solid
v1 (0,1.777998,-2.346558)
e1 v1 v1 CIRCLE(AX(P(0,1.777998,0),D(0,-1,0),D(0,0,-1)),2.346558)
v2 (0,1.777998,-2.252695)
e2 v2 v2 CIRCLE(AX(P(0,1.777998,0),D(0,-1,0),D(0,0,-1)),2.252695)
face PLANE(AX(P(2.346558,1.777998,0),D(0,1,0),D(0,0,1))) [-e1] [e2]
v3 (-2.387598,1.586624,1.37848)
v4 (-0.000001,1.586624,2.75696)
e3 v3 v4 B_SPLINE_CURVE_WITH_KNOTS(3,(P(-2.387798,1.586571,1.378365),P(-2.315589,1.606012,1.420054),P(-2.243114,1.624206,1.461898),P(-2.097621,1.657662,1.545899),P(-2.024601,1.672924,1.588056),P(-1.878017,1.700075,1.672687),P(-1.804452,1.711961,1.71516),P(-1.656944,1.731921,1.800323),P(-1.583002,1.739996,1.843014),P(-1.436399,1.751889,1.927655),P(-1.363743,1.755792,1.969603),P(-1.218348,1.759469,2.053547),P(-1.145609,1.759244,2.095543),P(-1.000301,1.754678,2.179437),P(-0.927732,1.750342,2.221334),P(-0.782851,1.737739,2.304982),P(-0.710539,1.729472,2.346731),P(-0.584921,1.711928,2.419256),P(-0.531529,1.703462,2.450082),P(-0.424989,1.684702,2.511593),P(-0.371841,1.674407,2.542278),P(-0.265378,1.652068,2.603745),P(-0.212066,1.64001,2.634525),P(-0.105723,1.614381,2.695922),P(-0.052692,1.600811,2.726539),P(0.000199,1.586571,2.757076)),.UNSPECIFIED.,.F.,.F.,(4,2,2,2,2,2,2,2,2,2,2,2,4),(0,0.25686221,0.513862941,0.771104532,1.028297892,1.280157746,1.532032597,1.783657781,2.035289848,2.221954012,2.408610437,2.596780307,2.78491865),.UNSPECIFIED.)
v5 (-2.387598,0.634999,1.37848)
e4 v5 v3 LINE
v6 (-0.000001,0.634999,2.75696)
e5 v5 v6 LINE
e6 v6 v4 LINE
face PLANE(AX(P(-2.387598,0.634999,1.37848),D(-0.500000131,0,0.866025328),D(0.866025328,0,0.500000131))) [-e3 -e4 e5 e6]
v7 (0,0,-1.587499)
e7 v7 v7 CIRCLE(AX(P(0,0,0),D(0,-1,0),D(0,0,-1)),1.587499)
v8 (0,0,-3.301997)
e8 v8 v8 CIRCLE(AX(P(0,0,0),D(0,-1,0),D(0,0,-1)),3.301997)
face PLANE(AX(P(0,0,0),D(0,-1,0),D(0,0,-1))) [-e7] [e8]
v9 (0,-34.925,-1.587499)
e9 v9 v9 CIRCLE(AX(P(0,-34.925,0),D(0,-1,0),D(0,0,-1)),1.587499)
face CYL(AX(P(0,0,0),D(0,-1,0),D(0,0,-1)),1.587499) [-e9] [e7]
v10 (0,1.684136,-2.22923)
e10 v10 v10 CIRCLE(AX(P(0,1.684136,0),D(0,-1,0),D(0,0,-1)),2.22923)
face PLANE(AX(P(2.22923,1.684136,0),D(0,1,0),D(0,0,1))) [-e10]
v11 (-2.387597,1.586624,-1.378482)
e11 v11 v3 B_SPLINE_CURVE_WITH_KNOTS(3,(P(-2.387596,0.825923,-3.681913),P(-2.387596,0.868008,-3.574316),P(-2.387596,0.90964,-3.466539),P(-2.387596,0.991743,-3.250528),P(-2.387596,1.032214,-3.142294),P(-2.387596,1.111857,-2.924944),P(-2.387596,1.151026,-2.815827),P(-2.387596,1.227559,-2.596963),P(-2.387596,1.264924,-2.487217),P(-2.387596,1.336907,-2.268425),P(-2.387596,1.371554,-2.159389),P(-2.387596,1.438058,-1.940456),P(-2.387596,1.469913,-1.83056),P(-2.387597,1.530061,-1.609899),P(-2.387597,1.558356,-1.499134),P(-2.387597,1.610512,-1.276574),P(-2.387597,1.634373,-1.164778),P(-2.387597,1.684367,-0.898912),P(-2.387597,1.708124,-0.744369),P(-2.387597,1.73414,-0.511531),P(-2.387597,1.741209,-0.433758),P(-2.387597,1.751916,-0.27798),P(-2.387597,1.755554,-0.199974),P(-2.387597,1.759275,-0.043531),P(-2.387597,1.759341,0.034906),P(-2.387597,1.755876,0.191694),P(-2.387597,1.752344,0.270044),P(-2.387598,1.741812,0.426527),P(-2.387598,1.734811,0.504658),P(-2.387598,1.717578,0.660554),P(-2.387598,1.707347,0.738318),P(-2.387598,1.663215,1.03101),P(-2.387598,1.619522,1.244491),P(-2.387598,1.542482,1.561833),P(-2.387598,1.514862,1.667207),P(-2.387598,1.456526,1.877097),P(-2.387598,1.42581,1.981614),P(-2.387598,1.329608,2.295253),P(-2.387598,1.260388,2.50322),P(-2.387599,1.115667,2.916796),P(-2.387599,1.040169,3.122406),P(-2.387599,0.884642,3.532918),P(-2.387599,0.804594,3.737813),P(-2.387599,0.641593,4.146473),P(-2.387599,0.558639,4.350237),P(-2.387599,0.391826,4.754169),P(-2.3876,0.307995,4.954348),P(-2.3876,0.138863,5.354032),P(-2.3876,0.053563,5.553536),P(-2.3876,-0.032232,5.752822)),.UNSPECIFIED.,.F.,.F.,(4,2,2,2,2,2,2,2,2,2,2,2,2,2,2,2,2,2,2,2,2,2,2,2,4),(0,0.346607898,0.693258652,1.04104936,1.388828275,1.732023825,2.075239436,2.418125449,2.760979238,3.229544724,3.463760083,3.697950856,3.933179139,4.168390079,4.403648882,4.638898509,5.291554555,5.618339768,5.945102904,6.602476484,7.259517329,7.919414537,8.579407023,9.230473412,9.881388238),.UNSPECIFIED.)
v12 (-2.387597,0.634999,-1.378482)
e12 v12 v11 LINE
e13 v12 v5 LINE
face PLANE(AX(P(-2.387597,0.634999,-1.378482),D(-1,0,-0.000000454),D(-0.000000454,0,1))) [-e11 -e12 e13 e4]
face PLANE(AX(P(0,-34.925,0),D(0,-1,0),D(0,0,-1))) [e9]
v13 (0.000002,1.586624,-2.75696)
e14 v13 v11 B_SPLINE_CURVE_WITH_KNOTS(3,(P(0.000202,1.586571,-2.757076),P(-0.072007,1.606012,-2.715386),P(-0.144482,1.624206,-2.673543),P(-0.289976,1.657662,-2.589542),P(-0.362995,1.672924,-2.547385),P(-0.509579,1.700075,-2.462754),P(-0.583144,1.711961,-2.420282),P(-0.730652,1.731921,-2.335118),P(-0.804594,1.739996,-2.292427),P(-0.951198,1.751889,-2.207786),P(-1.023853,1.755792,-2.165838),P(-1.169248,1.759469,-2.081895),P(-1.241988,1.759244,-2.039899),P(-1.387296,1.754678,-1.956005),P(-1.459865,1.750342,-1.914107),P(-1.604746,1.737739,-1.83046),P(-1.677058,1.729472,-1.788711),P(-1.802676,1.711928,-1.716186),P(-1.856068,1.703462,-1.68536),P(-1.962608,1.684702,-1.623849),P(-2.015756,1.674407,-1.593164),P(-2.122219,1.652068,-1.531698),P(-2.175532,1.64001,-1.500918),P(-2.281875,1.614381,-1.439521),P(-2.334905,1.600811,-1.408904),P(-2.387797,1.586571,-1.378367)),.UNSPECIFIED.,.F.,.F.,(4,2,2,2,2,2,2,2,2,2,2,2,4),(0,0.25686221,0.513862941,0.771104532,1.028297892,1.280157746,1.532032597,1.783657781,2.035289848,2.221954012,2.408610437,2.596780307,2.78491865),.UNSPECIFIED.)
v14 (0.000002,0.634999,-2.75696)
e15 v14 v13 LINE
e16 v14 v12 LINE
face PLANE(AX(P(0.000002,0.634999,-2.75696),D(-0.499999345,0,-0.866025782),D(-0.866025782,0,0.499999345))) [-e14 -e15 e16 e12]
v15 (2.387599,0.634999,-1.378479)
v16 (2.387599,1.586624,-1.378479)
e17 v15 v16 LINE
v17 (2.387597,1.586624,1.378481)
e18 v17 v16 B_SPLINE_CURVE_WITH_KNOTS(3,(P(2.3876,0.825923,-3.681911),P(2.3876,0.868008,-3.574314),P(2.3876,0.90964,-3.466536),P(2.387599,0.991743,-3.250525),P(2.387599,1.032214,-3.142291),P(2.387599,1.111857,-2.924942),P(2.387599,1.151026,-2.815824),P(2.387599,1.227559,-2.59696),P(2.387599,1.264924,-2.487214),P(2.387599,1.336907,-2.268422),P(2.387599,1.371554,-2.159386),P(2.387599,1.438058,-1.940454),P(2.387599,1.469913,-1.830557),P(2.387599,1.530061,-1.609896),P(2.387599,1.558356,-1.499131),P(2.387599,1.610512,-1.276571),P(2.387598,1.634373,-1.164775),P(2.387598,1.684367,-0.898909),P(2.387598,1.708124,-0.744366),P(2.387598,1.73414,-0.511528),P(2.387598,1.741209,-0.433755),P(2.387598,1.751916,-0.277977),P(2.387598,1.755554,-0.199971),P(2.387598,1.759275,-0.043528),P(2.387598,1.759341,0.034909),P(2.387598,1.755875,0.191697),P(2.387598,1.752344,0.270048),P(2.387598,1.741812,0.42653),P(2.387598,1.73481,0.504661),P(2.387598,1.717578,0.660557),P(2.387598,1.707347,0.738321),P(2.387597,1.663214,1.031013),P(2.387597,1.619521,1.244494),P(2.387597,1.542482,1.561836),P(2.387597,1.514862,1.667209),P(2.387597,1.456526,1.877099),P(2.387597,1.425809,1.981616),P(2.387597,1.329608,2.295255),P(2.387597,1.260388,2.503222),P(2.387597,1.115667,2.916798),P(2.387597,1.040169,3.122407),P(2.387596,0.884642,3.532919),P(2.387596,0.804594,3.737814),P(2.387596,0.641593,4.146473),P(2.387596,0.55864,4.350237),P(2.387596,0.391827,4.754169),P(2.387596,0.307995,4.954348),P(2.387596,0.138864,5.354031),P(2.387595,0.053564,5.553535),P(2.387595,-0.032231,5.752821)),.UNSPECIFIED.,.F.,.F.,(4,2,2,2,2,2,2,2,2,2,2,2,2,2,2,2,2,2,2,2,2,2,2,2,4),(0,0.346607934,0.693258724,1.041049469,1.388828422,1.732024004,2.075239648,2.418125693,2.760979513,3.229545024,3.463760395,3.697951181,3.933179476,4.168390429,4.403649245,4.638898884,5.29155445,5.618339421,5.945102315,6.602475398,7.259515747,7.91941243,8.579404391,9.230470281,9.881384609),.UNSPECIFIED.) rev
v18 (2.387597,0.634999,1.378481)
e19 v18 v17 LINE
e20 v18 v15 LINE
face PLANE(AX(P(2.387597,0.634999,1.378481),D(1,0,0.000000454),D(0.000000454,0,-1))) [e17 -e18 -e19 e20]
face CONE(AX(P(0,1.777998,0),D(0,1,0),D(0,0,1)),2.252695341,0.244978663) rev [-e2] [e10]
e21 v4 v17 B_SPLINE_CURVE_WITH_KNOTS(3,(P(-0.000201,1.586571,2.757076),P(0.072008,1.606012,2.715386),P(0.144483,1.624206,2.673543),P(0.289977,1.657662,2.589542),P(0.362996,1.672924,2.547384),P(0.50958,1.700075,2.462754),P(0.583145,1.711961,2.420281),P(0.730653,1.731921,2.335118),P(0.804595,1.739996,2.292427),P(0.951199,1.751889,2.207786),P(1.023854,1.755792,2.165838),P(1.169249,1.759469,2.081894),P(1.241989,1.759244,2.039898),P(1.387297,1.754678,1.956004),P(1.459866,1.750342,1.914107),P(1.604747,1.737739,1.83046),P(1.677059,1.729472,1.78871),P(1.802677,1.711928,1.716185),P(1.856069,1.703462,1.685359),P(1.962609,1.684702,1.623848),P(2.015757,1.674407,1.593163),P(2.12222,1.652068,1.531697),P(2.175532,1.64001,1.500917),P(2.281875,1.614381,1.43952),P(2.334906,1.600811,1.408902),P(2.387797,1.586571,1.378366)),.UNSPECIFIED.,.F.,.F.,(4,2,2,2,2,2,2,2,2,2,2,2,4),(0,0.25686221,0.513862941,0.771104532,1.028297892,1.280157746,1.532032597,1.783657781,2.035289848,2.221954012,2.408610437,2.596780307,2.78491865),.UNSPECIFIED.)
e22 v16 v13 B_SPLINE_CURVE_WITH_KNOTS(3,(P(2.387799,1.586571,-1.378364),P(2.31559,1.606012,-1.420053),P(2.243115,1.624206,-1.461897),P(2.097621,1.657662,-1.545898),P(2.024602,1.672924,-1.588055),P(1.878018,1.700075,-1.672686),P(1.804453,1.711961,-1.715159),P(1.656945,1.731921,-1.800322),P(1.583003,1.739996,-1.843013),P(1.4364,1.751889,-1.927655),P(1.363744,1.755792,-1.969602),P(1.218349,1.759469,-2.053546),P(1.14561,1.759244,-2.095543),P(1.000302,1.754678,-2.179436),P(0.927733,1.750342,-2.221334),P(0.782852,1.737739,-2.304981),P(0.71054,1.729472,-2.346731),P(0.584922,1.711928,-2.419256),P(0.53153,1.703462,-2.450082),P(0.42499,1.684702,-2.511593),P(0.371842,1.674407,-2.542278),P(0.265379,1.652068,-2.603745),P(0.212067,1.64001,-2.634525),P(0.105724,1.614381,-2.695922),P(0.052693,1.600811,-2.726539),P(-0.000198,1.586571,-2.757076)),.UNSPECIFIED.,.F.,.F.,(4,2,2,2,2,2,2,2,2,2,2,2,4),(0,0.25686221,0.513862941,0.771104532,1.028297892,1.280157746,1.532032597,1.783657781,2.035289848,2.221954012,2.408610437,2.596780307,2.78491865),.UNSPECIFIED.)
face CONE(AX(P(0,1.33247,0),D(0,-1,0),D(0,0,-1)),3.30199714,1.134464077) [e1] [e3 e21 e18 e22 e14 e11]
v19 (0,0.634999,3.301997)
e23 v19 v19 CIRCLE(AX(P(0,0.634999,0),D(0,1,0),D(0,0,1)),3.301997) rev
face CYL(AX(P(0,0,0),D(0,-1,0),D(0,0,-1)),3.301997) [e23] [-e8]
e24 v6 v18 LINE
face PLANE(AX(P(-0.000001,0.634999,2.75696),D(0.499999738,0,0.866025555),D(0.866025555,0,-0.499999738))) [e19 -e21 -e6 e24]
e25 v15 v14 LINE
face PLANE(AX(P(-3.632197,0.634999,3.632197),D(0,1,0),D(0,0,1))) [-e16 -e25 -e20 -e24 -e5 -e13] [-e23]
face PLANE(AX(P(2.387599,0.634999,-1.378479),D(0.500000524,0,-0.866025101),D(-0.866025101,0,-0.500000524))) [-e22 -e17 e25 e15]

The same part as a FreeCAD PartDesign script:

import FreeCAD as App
import Part
import Sketcher

V = App.Vector
Q = App.Units.Quantity

doc = App.newDocument("Part")
body = doc.addObject("PartDesign::Body", "Body")

sketch1 = body.newObject("Sketcher::SketchObject", "Sketch")
sketch1.AttachmentSupport = (doc.getObject("XY_Plane"), [""])
sketch1.MapMode = "FlatFace"
sketch1.addGeometry([
    Part.LineSegment(V(0, 0, 0), V(3.3, 0, 0)),
    Part.LineSegment(V(3.3, 0, 0), V(3.3, 1.33, 0)),
    Part.LineSegment(V(3.3, 1.33, 0), V(2.35, 1.78, 0)),
    Part.LineSegment(V(2.35, 1.78, 0), V(2.25, 1.78, 0)),
    Part.LineSegment(V(2.25, 1.78, 0), V(2.23, 1.68, 0)),
    Part.LineSegment(V(2.23, 1.68, 0), V(0, 1.68, 0)),
    Part.LineSegment(V(0, 1.68, 0), V(0, 0, 0)),
], False)
sketch1.addConstraint([
    Sketcher.Constraint("Coincident", 0, 2, 1, 1),
    Sketcher.Constraint("Coincident", 1, 2, 2, 1),
    Sketcher.Constraint("Coincident", 2, 2, 3, 1),
    Sketcher.Constraint("Coincident", 3, 2, 4, 1),
    Sketcher.Constraint("Coincident", 4, 2, 5, 1),
    Sketcher.Constraint("Coincident", 5, 2, 6, 1),
    Sketcher.Constraint("Coincident", 6, 2, 0, 1),
    Sketcher.Constraint("Horizontal", 0),
    Sketcher.Constraint("Vertical", 1),
    Sketcher.Constraint("Horizontal", 3),
    Sketcher.Constraint("Horizontal", 5),
    Sketcher.Constraint("Vertical", 6),
    Sketcher.Constraint("Coincident", 6, 2, -1, 1),
    Sketcher.Constraint("Angle", 2, Q("155.000004 deg")),
    Sketcher.Constraint("DistanceX", 0, 1, 0, 2, Q("0.1299999 in")),
    Sketcher.Constraint("DistanceY", -1, 1, 2, 2, Q("0.0699999 in")),
    Sketcher.Constraint("DistanceX", 5, 2, 5, 1, 2.22923),
    Sketcher.Constraint("DistanceY", 1, 1, 1, 2, 1.33247),
    Sketcher.Constraint("DistanceX", 3, 2, 1, 2, 1.049302),
    Sketcher.Constraint("Distance", 4, 0.096751),
])
revolution = body.newObject("PartDesign::Revolution", "Revolution")
revolution.Profile = sketch1
revolution.ReferenceAxis = (sketch1, ["V_Axis"])
revolution.Angle = 360

sketch2 = body.newObject("Sketcher::SketchObject", "Sketch001")
sketch2.AttachmentSupport = (doc.getObject("XY_Plane"), [""])
sketch2.MapMode = "FlatFace"
sketch2.addGeometry([
    Part.LineSegment(V(0, 0, 0), V(0, -34.9, 0)),
    Part.LineSegment(V(0, -34.9, 0), V(1.6, -34.9, 0)),
    Part.LineSegment(V(1.6, -34.9, 0), V(1.6, 0, 0)),
    Part.LineSegment(V(1.6, 0, 0), V(0, 0, 0)),
], False)
sketch2.addConstraint([
    Sketcher.Constraint("Coincident", 0, 2, 1, 1),
    Sketcher.Constraint("Coincident", 1, 2, 2, 1),
    Sketcher.Constraint("Coincident", 2, 2, 3, 1),
    Sketcher.Constraint("Coincident", 3, 2, 0, 1),
    Sketcher.Constraint("Vertical", 0),
    Sketcher.Constraint("Horizontal", 1),
    Sketcher.Constraint("Vertical", 2),
    Sketcher.Constraint("Horizontal", 3),
    Sketcher.Constraint("Coincident", 3, 2, -1, 1),
    Sketcher.Constraint("DistanceX", 1, 1, 1, 2, Q("0.0624999 in")),
    Sketcher.Constraint("DistanceY", 0, 2, 0, 1, Q("1.375 in")),
])
revolution2 = body.newObject("PartDesign::Revolution", "Revolution001")
revolution2.Profile = sketch2
revolution2.ReferenceAxis = (sketch2, ["V_Axis"])
revolution2.Angle = 360

sketch3 = body.newObject("Sketcher::SketchObject", "Sketch002")
sketch3.AttachmentSupport = (doc.getObject("XZ_Plane"), [""])
sketch3.MapMode = "FlatFace"
sketch3.AttachmentOffset = App.Placement(V(0, 0, -0.0699999 * 25.4), App.Rotation())
sketch3.addGeometry([
    Part.LineSegment(V(3.6, 3.6, 0), V(3.6, -3.6, 0)),
    Part.LineSegment(V(3.6, -3.6, 0), V(-3.6, -3.6, 0)),
    Part.LineSegment(V(-3.6, -3.6, 0), V(-3.6, 3.6, 0)),
    Part.LineSegment(V(-3.6, 3.6, 0), V(3.6, 3.6, 0)),
    Part.LineSegment(V(0, 2.8, 0), V(-2.4, 1.4, 0)),
    Part.LineSegment(V(-2.4, 1.4, 0), V(-2.4, -1.4, 0)),
    Part.LineSegment(V(-2.4, -1.4, 0), V(0, -2.8, 0)),
    Part.LineSegment(V(0, -2.8, 0), V(2.4, -1.4, 0)),
    Part.LineSegment(V(2.4, -1.4, 0), V(2.4, 1.4, 0)),
    Part.LineSegment(V(2.4, 1.4, 0), V(0, 2.8, 0)),
], False)
sketch3.addConstraint([
    Sketcher.Constraint("Coincident", 0, 2, 1, 1),
    Sketcher.Constraint("Coincident", 1, 2, 2, 1),
    Sketcher.Constraint("Coincident", 2, 2, 3, 1),
    Sketcher.Constraint("Coincident", 3, 2, 0, 1),
    Sketcher.Constraint("Coincident", 4, 2, 5, 1),
    Sketcher.Constraint("Coincident", 5, 2, 6, 1),
    Sketcher.Constraint("Coincident", 6, 2, 7, 1),
    Sketcher.Constraint("Coincident", 7, 2, 8, 1),
    Sketcher.Constraint("Coincident", 8, 2, 9, 1),
    Sketcher.Constraint("Coincident", 9, 2, 4, 1),
    Sketcher.Constraint("Vertical", 0),
    Sketcher.Constraint("Horizontal", 1),
    Sketcher.Constraint("Vertical", 2),
    Sketcher.Constraint("Horizontal", 3),
    Sketcher.Constraint("Vertical", 5),
    Sketcher.Constraint("Vertical", 8),
    Sketcher.Constraint("Symmetric", 0, 2, 2, 2, -1, 1),
    Sketcher.Constraint("Symmetric", 4, 2, 7, 2, -1, 1),
    Sketcher.Constraint("Symmetric", 6, 2, 9, 2, -1, 1),
    Sketcher.Constraint("PointOnObject", 6, 2, -2),
    Sketcher.Constraint("Parallel", 6, 9),
    Sketcher.Constraint("Horizontal", 4, 2, 8, 2),
    Sketcher.Constraint("Equal", 3, 0),
    Sketcher.Constraint("Angle", 4, Q("-149.999991 deg")),
    Sketcher.Constraint("DistanceX", -1, 1, 0, 2, Q("0.1429999 in")),
    Sketcher.Constraint("DistanceX", 4, 2, -1, 1, Q("0.0939999 in")),
    Sketcher.Constraint("DistanceY", 8, 1, 8, 2, 2.75696),
])
pocket1 = body.newObject("PartDesign::Pocket", "Pocket")
pocket1.Profile = sketch3
pocket1.Length = Q("0.045 in")
pocket1.Reversed = True

doc.recompute()
